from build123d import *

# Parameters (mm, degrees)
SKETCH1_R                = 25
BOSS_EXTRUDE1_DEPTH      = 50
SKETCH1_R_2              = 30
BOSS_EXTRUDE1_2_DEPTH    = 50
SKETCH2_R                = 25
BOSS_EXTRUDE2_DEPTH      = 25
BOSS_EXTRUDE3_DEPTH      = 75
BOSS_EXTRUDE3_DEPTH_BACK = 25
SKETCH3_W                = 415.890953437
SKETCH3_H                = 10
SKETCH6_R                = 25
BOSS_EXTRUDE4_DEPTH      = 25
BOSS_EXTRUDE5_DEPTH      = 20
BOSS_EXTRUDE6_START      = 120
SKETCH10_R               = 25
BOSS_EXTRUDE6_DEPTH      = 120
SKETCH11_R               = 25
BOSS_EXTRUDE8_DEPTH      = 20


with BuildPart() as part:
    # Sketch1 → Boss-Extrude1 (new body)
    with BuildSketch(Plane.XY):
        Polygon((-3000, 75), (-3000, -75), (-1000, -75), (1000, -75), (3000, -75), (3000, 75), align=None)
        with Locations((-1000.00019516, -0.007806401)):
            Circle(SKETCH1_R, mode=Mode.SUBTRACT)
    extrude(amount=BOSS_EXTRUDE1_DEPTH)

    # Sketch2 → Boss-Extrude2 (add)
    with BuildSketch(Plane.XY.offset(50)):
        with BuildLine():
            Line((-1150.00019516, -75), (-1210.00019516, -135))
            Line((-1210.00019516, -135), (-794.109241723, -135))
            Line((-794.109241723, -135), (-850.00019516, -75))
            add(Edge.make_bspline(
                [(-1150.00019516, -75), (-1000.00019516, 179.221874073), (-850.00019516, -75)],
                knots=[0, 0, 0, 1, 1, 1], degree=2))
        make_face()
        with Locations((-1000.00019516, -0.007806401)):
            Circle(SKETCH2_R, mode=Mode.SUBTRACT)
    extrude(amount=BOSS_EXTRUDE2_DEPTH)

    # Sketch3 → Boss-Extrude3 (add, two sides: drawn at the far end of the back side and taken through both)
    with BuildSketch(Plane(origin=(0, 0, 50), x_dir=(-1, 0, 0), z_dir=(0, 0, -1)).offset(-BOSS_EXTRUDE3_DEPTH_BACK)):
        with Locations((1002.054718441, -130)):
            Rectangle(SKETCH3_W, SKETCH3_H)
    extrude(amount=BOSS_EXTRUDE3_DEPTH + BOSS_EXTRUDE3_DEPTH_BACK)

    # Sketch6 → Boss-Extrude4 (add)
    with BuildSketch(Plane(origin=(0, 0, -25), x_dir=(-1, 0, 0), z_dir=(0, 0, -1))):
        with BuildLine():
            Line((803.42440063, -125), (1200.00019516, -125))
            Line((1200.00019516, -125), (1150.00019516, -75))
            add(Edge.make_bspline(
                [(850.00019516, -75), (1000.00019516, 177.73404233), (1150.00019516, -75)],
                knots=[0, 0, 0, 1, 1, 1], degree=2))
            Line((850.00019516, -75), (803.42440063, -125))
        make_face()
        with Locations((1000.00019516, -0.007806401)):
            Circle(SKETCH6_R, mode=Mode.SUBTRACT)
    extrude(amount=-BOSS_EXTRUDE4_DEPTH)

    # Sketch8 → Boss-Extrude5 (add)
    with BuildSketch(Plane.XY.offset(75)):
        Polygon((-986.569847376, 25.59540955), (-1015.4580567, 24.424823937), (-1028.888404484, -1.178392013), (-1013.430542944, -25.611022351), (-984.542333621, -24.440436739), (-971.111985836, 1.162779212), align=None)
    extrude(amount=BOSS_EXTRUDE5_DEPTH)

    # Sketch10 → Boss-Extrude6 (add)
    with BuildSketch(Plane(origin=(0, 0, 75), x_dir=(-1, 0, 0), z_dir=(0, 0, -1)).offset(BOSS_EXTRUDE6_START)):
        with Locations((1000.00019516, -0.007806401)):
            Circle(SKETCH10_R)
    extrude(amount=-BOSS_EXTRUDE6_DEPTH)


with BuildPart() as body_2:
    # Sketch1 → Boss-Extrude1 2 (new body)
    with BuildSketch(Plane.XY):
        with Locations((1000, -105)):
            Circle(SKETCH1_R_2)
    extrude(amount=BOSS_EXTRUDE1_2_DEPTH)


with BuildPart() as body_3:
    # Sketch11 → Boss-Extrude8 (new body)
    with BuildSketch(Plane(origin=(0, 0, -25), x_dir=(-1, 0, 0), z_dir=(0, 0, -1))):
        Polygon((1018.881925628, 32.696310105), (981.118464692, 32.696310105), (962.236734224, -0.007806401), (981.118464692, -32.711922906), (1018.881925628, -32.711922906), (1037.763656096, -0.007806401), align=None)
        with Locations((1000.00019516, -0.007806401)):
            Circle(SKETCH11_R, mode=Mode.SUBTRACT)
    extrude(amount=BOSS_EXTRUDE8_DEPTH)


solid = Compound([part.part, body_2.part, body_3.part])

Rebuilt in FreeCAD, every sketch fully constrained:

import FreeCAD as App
import Part
import Sketcher
from FreeCAD import Vector
Q = App.Units.Quantity


def add_polygon(sketch, points):
    """Adds a closed chain of lines whose ends are joined by coincident constraints."""
    first, n = sketch.GeometryCount, len(points)
    for a, b in zip(points, points[1:] + points[:1]):
        sketch.addGeometry(Part.LineSegment(App.Vector(*a, 0), App.Vector(*b, 0)), False)
    for i in range(n):
        sketch.addConstraint(Sketcher.Constraint("Coincident", first + i, 2, first + (i + 1) % n, 1))

doc = App.newDocument("Part")
params = doc.addObject("Spreadsheet::Sheet", "Params")
for row, (alias, value) in enumerate([
    ("sketch1_diameter", "50 mm"),
    ("sketch1_width", "6000 mm"),
    ("sketch1_height", "150 mm"),
    ("pad1_length", "50 mm"),
    ("sketch2_diameter", "50 mm"),
    ("pad2_length", "25 mm"),
    ("sketch3_height", "10 mm"),
    ("pad3_length", "75 mm"),
    ("pad3_length2", "25 mm"),
    ("sketch4_diameter", "50 mm"),
    ("pad4_length", "25 mm"),
    ("pad5_length", "20 mm"),
    ("sketch6_diameter", "50 mm"),
    ("pad6_length", "120 mm"),
    ("sketch7_diameter", "60 mm"),
    ("pad7_length", "50 mm"),
    ("sketch8_diameter", "50 mm"),
    ("pad8_length", "20 mm"),
], start=1):
    params.set(f"A{row}", alias)
    params.set(f"B{row}", "=" + value)
    params.setAlias(f"B{row}", alias)

body = doc.addObject("PartDesign::Body", "Body")

sketch1 = body.newObject("Sketcher::SketchObject", "Sketch")
sketch1.AttachmentSupport = (doc.getObject("XY_Plane"), [""])
sketch1.MapMode = "FlatFace"
add_polygon(sketch1, [(-3000, 75), (-3000, -75), (3000, -75), (3000, 75)])
sketch1.addGeometry(Part.Circle(Vector(-1000, 0, 0), Vector(0, 0, 1), 25), False)
sketch1.addConstraint([
    Sketcher.Constraint("Vertical", 0),
    Sketcher.Constraint("Horizontal", 1),
    Sketcher.Constraint("Vertical", 2),
    Sketcher.Constraint("Horizontal", 3),
    Sketcher.Constraint("Symmetric", 0, 2, 2, 2, -1, 1),
    Sketcher.Constraint("Diameter", 4, Q("50 mm")),
    Sketcher.Constraint("DistanceX", 1, 1, 1, 2, Q("6000 mm")),
    Sketcher.Constraint("DistanceY", 0, 2, 0, 1, Q("150 mm")),
    Sketcher.Constraint("DistanceX", 4, 3, -1, 1, Q("1000.000195 mm")),
    Sketcher.Constraint("DistanceY", 4, 3, -1, 1, Q("0.007806 mm")),
])
sketch1.setExpression("Constraints[9]", "Params.sketch1_diameter")
sketch1.setExpression("Constraints[10]", "Params.sketch1_width")
sketch1.setExpression("Constraints[11]", "Params.sketch1_height")
pad1 = body.newObject("PartDesign::Pad", "Pad")
pad1.Profile = sketch1
pad1.setExpression("Length", "Params.pad1_length")

sketch2 = body.newObject("Sketcher::SketchObject", "Sketch001")
sketch2.AttachmentSupport = (doc.getObject("XY_Plane"), [""])
sketch2.MapMode = "FlatFace"
sketch2.AttachmentOffset = App.Placement(Vector(0, 0, 50), App.Rotation())
sketch2.addGeometry([
    Part.LineSegment(Vector(-1150.000195, -75, 0), Vector(-1210.000195, -135, 0)),
    Part.LineSegment(Vector(-1210.000195, -135, 0), Vector(-794.109242, -135, 0)),
    Part.LineSegment(Vector(-794.109242, -135, 0), Vector(-850.000195, -75, 0)),
    Part.BSplineCurve([Vector(-1150.000195, -75, 0), Vector(-1000.000195, 179.221874, 0), Vector(-850.000195, -75, 0)], [3, 3], [0, 1], False, 2, [1, 1, 1], False),
    Part.Circle(Vector(-1000.000195, -0.007806, 0), Vector(0, 0, 1), 25),
], False)
sketch2.addConstraint([
    Sketcher.Constraint("Block", 3),
    Sketcher.Constraint("Coincident", 0, 2, 1, 1),
    Sketcher.Constraint("Coincident", 1, 2, 2, 1),
    Sketcher.Constraint("Coincident", 2, 2, 3, 2),
    Sketcher.Constraint("Coincident", 3, 1, 0, 1),
    Sketcher.Constraint("Horizontal", 1),
    Sketcher.Constraint("Diameter", 4, Q("50 mm")),
    Sketcher.Constraint("Angle", 0, Q("-135 deg")),
    Sketcher.Constraint("DistanceY", 0, 2, -1, 1, Q("135 mm")),
    Sketcher.Constraint("DistanceX", 0, 2, 4, 3, Q("210 mm")),
    Sketcher.Constraint("DistanceX", 1, 1, 1, 2, Q("415.890953 mm")),
    Sketcher.Constraint("DistanceY", 4, 3, -1, 1, Q("0.007806 mm")),
])
sketch2.setExpression("Constraints[6]", "Params.sketch2_diameter")
pad2 = body.newObject("PartDesign::Pad", "Pad001")
pad2.Profile = sketch2
pad2.setExpression("Length", "Params.pad2_length")

sketch3 = body.newObject("Sketcher::SketchObject", "Sketch002")
sketch3.AttachmentSupport = (doc.getObject("XY_Plane"), [""])
sketch3.MapMode = "FlatFace"
sketch3.AttachmentOffset = App.Placement(Vector(0, 0, 50), App.Rotation())
add_polygon(sketch3, [(-794, -125), (-794, -135), (-1210, -135), (-1210, -125)])
sketch3.addConstraint([
    Sketcher.Constraint("Vertical", 0),
    Sketcher.Constraint("Horizontal", 1),
    Sketcher.Constraint("Vertical", 2),
    Sketcher.Constraint("Horizontal", 3),
    Sketcher.Constraint("DistanceY", 0, 2, 0, 1, Q("10 mm")),
    Sketcher.Constraint("DistanceY", 0, 2, -1, 1, Q("135 mm")),
    Sketcher.Constraint("DistanceX", 1, 2, 1, 1, Q("415.890953 mm")),
    Sketcher.Constraint("DistanceX", 0, 2, -1, 1, Q("794.109242 mm")),
])
sketch3.setExpression("Constraints[8]", "Params.sketch3_height")
pad3 = body.newObject("PartDesign::Pad", "Pad002")
pad3.Profile = sketch3
pad3.Type = "TwoLengths"
pad3.setExpression("Length", "Params.pad3_length")
pad3.setExpression("Length2", "Params.pad3_length2")
pad3.Reversed = True

sketch4 = body.newObject("Sketcher::SketchObject", "Sketch003")
sketch4.AttachmentSupport = (doc.getObject("XY_Plane"), [""])
sketch4.MapMode = "FlatFace"
sketch4.AttachmentOffset = App.Placement(Vector(0, 0, -25), App.Rotation())
sketch4.addGeometry([
    Part.LineSegment(Vector(-803.424401, -125, 0), Vector(-1200.000195, -125, 0)),
    Part.LineSegment(Vector(-1200.000195, -125, 0), Vector(-1150.000195, -75, 0)),
    Part.BSplineCurve([Vector(-850.000195, -75, 0), Vector(-1000.000195, 177.734042, 0), Vector(-1150.000195, -75, 0)], [3, 3], [0, 1], False, 2, [1, 1, 1], False),
    Part.LineSegment(Vector(-850.000195, -75, 0), Vector(-803.424401, -125, 0)),
    Part.Circle(Vector(-1000.000195, -0.007806, 0), Vector(0, 0, 1), 25),
], False)
sketch4.addConstraint([
    Sketcher.Constraint("Block", 2),
    Sketcher.Constraint("Coincident", 0, 2, 1, 1),
    Sketcher.Constraint("Coincident", 1, 2, 2, 2),
    Sketcher.Constraint("Coincident", 2, 1, 3, 1),
    Sketcher.Constraint("Coincident", 3, 2, 0, 1),
    Sketcher.Constraint("Horizontal", 0),
    Sketcher.Constraint("Diameter", 4, Q("50 mm")),
    Sketcher.Constraint("Angle", 1, Q("45 deg")),
    Sketcher.Constraint("DistanceY", 0, 2, -1, 1, Q("125 mm")),
    Sketcher.Constraint("DistanceX", 0, 2, 4, 3, Q("200 mm")),
    Sketcher.Constraint("DistanceX", 3, 2, -1, 1, Q("803.424401 mm")),
    Sketcher.Constraint("DistanceY", 4, 3, -1, 1, Q("0.007806 mm")),
])
sketch4.setExpression("Constraints[6]", "Params.sketch4_diameter")
pad4 = body.newObject("PartDesign::Pad", "Pad003")
pad4.Profile = sketch4
pad4.setExpression("Length", "Params.pad4_length")

sketch5 = body.newObject("Sketcher::SketchObject", "Sketch004")
sketch5.AttachmentSupport = (doc.getObject("XY_Plane"), [""])
sketch5.MapMode = "FlatFace"
sketch5.AttachmentOffset = App.Placement(Vector(0, 0, 75), App.Rotation())
add_polygon(sketch5, [(-986.569847, 25.59541), (-1015.458057, 24.424824), (-1028.888404, -1.178392), (-1013.430543, -25.611022), (-984.542334, -24.440437), (-971.111986, 1.162779)])
sketch5.addConstraint([
    Sketcher.Constraint("Parallel", 0, 3),
    Sketcher.Constraint("Parallel", 1, 4),
    Sketcher.Constraint("Parallel", 2, 5),
    Sketcher.Constraint("Equal", 0, 1),
    Sketcher.Constraint("Equal", 1, 2),
    Sketcher.Constraint("Equal", 2, 3),
    Sketcher.Constraint("DistanceY", 2, 2, 4, 2, Q("26.773802 mm")),
    Sketcher.Constraint("DistanceY", -1, 1, 4, 2, Q("1.162779 mm")),
    Sketcher.Constraint("DistanceY", -1, 1, 5, 2, Q("25.59541 mm")),
    Sketcher.Constraint("DistanceX", 1, 2, 2, 2, Q("15.457862 mm")),
    Sketcher.Constraint("DistanceX", 2, 2, 3, 2, Q("28.888209 mm")),
    Sketcher.Constraint("DistanceX", 0, 2, -1, 1, Q("1015.458057 mm")),
])
pad5 = body.newObject("PartDesign::Pad", "Pad004")
pad5.Profile = sketch5
pad5.setExpression("Length", "Params.pad5_length")

sketch6 = body.newObject("Sketcher::SketchObject", "Sketch005")
sketch6.AttachmentSupport = (doc.getObject("XY_Plane"), [""])
sketch6.MapMode = "FlatFace"
sketch6.AttachmentOffset = App.Placement(Vector(0, 0, -45), App.Rotation())
sketch6.addGeometry(Part.Circle(Vector(-1000, 0, 0), Vector(0, 0, 1), 25), False)
sketch6.addConstraint([
    Sketcher.Constraint("Diameter", 0, Q("50 mm")),
    Sketcher.Constraint("DistanceX", 0, 3, -1, 1, Q("1000.000195 mm")),
    Sketcher.Constraint("DistanceY", 0, 3, -1, 1, Q("0.007806 mm")),
])
sketch6.setExpression("Constraints[0]", "Params.sketch6_diameter")
pad6 = body.newObject("PartDesign::Pad", "Pad005")
pad6.Profile = sketch6
pad6.setExpression("Length", "Params.pad6_length")
body2 = doc.addObject("PartDesign::Body", "Body001")

sketch7 = body2.newObject("Sketcher::SketchObject", "Sketch006")
sketch7.AttachmentSupport = (doc.getObject("XY_Plane001"), [""])
sketch7.MapMode = "FlatFace"
sketch7.addGeometry(Part.Circle(Vector(1000, -105, 0), Vector(0, 0, 1), 30), False)
sketch7.addConstraint([
    Sketcher.Constraint("Diameter", 0, Q("60 mm")),
    Sketcher.Constraint("DistanceX", -1, 1, 0, 3, Q("1000 mm")),
    Sketcher.Constraint("DistanceY", 0, 3, -1, 1, Q("105 mm")),
])
sketch7.setExpression("Constraints[0]", "Params.sketch7_diameter")
pad7 = body2.newObject("PartDesign::Pad", "Pad006")
pad7.Profile = sketch7
pad7.setExpression("Length", "Params.pad7_length")
body3 = doc.addObject("PartDesign::Body", "Body002")

sketch8 = body3.newObject("Sketcher::SketchObject", "Sketch007")
sketch8.AttachmentSupport = (doc.getObject("XY_Plane002"), [""])
sketch8.MapMode = "FlatFace"
sketch8.AttachmentOffset = App.Placement(Vector(0, 0, -25), App.Rotation())
add_polygon(sketch8, [(-1019, 33), (-981, 33), (-962, 0), (-981, -33), (-1019, -33), (-1038, 0)])
sketch8.addGeometry(Part.Circle(Vector(-1000, 0, 0), Vector(0, 0, 1), 25), False)
sketch8.addConstraint([
    Sketcher.Constraint("Horizontal", 0),
    Sketcher.Constraint("Horizontal", 3),
    Sketcher.Constraint("Parallel", 1, 4),
    Sketcher.Constraint("Parallel", 2, 5),
    Sketcher.Constraint("Horizontal", 6, 3, 1, 2),
    Sketcher.Constraint("Horizontal", 1, 2, 4, 2),
    Sketcher.Constraint("Vertical", 0, 2, 2, 2),
    Sketcher.Constraint("Vertical", 3, 2, 5, 2),
    Sketcher.Constraint("Diameter", 6, Q("50 mm")),
    Sketcher.Constraint("Angle", 1, Q("-60 deg")),
    Sketcher.Constraint("DistanceX", 0, 1, 0, 2, Q("37.763461 mm")),
    Sketcher.Constraint("Distance", 1, Q("37.763461 mm")),
    Sketcher.Constraint("DistanceY", -1, 1, 0, 2, Q("32.69631 mm")),
    Sketcher.Constraint("DistanceX", 6, 3, 0, 2, Q("18.88173 mm")),
    Sketcher.Constraint("DistanceX", 6, 3, -1, 1, Q("1000.000195 mm")),
])
sketch8.setExpression("Constraints[14]", "Params.sketch8_diameter")
pad8 = body3.newObject("PartDesign::Pad", "Pad007")
pad8.Profile = sketch8
pad8.setExpression("Length", "Params.pad8_length")
pad8.Reversed = True

doc.recompute()
